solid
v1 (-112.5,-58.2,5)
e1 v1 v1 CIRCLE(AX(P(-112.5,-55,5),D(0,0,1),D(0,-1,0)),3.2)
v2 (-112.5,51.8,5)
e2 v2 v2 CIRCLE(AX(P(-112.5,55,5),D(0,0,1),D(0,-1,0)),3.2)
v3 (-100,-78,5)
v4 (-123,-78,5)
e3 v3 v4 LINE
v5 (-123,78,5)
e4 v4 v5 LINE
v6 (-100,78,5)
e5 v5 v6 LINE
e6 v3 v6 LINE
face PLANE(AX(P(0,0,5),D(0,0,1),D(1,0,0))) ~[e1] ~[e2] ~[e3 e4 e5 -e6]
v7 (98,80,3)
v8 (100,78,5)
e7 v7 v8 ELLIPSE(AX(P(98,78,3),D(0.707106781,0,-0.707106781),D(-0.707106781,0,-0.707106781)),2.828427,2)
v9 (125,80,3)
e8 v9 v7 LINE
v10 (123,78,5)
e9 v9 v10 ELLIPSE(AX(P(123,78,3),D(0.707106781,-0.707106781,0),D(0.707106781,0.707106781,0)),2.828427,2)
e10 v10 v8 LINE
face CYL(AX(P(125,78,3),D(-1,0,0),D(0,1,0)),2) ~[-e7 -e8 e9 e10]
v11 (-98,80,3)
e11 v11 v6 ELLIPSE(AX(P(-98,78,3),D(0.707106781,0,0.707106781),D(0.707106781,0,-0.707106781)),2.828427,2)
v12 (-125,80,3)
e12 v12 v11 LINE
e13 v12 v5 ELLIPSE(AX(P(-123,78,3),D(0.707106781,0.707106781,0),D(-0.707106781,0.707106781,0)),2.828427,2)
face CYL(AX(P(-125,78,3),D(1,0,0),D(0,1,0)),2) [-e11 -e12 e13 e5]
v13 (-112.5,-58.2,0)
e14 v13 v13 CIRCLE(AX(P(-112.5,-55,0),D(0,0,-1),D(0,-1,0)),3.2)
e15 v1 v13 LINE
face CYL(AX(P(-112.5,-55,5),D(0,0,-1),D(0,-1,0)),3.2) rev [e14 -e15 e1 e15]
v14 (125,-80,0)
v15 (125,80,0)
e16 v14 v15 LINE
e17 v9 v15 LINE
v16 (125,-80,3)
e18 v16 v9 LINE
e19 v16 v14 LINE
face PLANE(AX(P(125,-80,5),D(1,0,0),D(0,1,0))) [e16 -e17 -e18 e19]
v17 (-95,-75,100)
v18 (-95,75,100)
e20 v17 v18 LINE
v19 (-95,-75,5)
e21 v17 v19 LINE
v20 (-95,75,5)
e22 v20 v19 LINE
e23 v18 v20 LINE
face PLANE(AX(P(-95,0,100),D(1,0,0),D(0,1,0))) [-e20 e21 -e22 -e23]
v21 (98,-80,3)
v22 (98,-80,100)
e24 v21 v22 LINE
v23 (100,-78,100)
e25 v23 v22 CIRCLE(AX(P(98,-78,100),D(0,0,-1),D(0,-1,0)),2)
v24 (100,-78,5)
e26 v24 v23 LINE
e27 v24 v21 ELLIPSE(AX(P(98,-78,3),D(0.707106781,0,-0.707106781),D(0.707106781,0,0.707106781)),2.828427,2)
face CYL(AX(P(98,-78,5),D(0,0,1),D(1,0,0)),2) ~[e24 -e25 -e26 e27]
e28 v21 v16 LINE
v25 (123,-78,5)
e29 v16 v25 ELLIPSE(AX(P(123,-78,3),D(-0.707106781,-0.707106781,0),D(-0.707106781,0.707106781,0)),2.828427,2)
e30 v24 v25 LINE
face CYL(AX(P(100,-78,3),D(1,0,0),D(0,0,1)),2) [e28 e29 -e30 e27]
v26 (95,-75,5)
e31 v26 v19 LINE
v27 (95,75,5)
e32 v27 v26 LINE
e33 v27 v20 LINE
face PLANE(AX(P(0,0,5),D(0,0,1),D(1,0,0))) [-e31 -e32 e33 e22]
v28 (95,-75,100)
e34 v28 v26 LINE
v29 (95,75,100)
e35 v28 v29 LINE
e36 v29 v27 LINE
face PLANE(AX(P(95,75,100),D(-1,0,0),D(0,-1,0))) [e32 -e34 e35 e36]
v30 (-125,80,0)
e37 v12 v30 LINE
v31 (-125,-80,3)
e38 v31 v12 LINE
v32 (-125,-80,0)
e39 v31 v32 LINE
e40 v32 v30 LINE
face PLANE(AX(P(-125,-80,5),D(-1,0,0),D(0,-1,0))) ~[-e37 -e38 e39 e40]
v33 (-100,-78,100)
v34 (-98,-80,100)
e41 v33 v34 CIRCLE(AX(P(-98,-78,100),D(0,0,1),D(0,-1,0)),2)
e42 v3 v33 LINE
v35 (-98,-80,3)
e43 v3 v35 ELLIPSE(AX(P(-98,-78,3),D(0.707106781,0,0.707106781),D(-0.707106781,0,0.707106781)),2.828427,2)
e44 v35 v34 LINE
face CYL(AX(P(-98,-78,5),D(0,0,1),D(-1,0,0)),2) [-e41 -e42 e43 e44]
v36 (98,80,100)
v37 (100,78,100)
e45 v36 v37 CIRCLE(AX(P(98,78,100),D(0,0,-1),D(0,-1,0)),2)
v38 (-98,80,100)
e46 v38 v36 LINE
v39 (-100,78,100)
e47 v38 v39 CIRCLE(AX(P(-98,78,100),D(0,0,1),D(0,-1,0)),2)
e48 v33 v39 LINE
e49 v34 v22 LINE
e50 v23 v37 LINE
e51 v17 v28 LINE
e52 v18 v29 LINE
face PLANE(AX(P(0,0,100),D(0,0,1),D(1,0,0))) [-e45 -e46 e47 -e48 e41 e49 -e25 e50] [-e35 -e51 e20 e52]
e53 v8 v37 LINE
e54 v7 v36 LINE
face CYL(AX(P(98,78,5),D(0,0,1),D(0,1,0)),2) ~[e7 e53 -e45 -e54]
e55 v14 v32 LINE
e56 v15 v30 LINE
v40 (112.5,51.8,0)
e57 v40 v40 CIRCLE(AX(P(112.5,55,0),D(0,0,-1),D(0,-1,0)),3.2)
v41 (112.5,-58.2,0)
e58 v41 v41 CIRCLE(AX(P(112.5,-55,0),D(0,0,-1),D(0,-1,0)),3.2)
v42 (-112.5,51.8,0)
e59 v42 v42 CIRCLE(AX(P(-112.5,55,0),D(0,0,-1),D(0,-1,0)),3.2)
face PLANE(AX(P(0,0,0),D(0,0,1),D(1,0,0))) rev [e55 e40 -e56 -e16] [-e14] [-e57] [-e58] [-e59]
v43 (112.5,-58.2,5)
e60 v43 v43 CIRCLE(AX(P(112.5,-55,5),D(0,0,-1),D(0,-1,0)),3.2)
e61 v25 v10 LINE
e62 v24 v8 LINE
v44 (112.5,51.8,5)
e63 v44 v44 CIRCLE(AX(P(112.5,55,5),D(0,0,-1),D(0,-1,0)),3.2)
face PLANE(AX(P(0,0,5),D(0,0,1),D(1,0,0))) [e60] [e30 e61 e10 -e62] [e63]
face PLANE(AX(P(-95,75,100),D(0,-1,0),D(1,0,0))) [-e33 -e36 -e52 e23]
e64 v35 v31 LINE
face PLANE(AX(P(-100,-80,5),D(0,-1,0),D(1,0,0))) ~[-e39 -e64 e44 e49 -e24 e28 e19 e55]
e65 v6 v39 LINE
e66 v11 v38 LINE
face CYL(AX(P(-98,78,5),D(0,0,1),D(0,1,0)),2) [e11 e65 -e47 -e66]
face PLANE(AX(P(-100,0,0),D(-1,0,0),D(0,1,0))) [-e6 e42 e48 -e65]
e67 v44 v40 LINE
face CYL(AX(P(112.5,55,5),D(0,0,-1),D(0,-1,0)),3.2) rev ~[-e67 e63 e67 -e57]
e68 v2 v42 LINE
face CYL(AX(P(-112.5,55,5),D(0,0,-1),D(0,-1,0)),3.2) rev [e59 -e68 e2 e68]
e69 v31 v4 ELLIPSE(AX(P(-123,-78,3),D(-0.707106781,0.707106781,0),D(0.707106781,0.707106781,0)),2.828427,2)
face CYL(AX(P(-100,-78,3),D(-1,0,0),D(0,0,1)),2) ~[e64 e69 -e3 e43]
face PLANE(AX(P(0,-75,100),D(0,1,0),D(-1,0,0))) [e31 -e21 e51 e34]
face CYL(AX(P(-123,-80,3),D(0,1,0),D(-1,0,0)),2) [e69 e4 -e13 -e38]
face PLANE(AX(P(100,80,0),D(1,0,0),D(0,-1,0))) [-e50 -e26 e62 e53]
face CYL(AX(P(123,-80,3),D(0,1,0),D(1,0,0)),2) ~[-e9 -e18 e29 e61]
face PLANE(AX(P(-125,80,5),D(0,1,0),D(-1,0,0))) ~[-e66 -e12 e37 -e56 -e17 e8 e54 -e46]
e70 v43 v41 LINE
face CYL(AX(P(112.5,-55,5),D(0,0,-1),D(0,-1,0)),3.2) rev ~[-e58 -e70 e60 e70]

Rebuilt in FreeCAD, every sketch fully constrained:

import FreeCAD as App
import Part
import Sketcher

V = App.Vector
Q = App.Units.Quantity


def edges_at(feature, points):
    """Names of the edges that pass closest to the given points."""
    edges = feature.Shape.Edges
    near = lambda p: min(range(len(edges)), key=lambda i: edges[i].distToShape(Part.Vertex(*p))[0])
    return sorted({f"Edge{near(p) + 1}" for p in points})


def add_polygon(sketch, points):
    """Adds a closed chain of lines whose ends are joined by coincident constraints."""
    first, n = sketch.GeometryCount, len(points)
    for a, b in zip(points, points[1:] + points[:1]):
        sketch.addGeometry(Part.LineSegment(App.Vector(*a, 0), App.Vector(*b, 0)), False)
    for i in range(n):
        sketch.addConstraint(Sketcher.Constraint("Coincident", first + i, 2, first + (i + 1) % n, 1))

doc = App.newDocument("Part")
params = doc.addObject("Spreadsheet::Sheet", "Params")
for row, (alias, value) in enumerate([
    ("sketch1_width", "200 mm"),
    ("sketch1_height", "160 mm"),
    ("pad1_length", "100 mm"),
    ("sketch2_width", "190 mm"),
    ("sketch2_height", "150 mm"),
    ("pocket1_length", "95 mm"),
    ("sketch3_width", "25 mm"),
    ("sketch3_height", "160 mm"),
    ("pad2_length", "5 mm"),
    ("sketch4_diameter", "6.4 mm"),
    ("hole_diameter", "6.4 mm"),
    ("hole_depth", "8 mm"),
    ("fillet_radius", "2 mm"),
], start=1):
    params.set(f"A{row}", alias)
    params.set(f"B{row}", "=" + value)
    params.setAlias(f"B{row}", alias)

body = doc.addObject("PartDesign::Body", "Body")

sketch1 = doc.addObject("Sketcher::SketchObject", "Sketch")
body.addObject(sketch1)
sketch1.AttachmentSupport = (doc.XY_Plane, [""])
sketch1.MapMode = "FlatFace"
add_polygon(sketch1, [(-100, 80), (-100, -80), (100, -80), (100, 80)])
sketch1.addConstraint([
    Sketcher.Constraint("Vertical", 0),
    Sketcher.Constraint("Horizontal", 1),
    Sketcher.Constraint("Vertical", 2),
    Sketcher.Constraint("Horizontal", 3),
    Sketcher.Constraint("Symmetric", 0, 2, 2, 2, -1, 1),
    Sketcher.Constraint("DistanceX", 1, 1, 1, 2, Q("200 mm")),
    Sketcher.Constraint("DistanceY", 0, 2, 0, 1, Q("160 mm")),
])
sketch1.setExpression("Constraints[9]", "Params.sketch1_width")
sketch1.setExpression("Constraints[10]", "Params.sketch1_height")
pad1 = doc.addObject("PartDesign::Pad", "Pad")
body.addObject(pad1)
pad1.Profile = sketch1
pad1.setExpression("Length", "Params.pad1_length")

sketch2 = doc.addObject("Sketcher::SketchObject", "Sketch001")
body.addObject(sketch2)
sketch2.AttachmentSupport = (doc.XY_Plane, [""])
sketch2.MapMode = "FlatFace"
sketch2.AttachmentOffset = App.Placement(V(0, 0, 100), App.Rotation())
add_polygon(sketch2, [(-95, 75), (-95, -75), (95, -75), (95, 75)])
sketch2.addConstraint([
    Sketcher.Constraint("Vertical", 0),
    Sketcher.Constraint("Horizontal", 1),
    Sketcher.Constraint("Vertical", 2),
    Sketcher.Constraint("Horizontal", 3),
    Sketcher.Constraint("Symmetric", 0, 2, 2, 2, -1, 1),
    Sketcher.Constraint("DistanceX", 1, 1, 1, 2, Q("190 mm")),
    Sketcher.Constraint("DistanceY", 0, 2, 0, 1, Q("150 mm")),
])
sketch2.setExpression("Constraints[9]", "Params.sketch2_width")
sketch2.setExpression("Constraints[10]", "Params.sketch2_height")
pocket1 = doc.addObject("PartDesign::Pocket", "Pocket")
body.addObject(pocket1)
pocket1.Profile = sketch2
pocket1.setExpression("Length", "Params.pocket1_length")

sketch3 = doc.addObject("Sketcher::SketchObject", "Sketch002")
body.addObject(sketch3)
sketch3.AttachmentSupport = (doc.XY_Plane, [""])
sketch3.MapMode = "FlatFace"
sketch3.AttachmentOffset = App.Placement(V(0, 0, 5), App.Rotation())
add_polygon(sketch3, [(100, 80), (100, -80), (125, -80), (125, 80)])
sketch3.addConstraint([
    Sketcher.Constraint("Vertical", 0),
    Sketcher.Constraint("Horizontal", 1),
    Sketcher.Constraint("Vertical", 2),
    Sketcher.Constraint("Horizontal", 3),
    Sketcher.Constraint("DistanceX", 1, 1, 1, 2, Q("25 mm")),
    Sketcher.Constraint("DistanceY", 0, 2, 0, 1, Q("160 mm")),
    Sketcher.Constraint("DistanceX", -1, 1, 0, 2, Q("100 mm")),
    Sketcher.Constraint("DistanceY", 0, 2, -1, 1, Q("80 mm")),
])
sketch3.setExpression("Constraints[8]", "Params.sketch3_width")
sketch3.setExpression("Constraints[9]", "Params.sketch3_height")
pad2 = doc.addObject("PartDesign::Pad", "Pad001")
body.addObject(pad2)
pad2.Profile = sketch3
pad2.setExpression("Length", "Params.pad2_length")
pad2.Reversed = True

sketch4 = doc.addObject("Sketcher::SketchObject", "Sketch003")
body.addObject(sketch4)
sketch4.AttachmentSupport = (doc.XY_Plane, [""])
sketch4.MapMode = "FlatFace"
sketch4.AttachmentOffset = App.Placement(V(0, 0, 5), App.Rotation())
sketch4.addGeometry([
    Part.Circle(V(112.5, 55, 0), V(0, 0, 1), 3.2),
    Part.Circle(V(112.5, -55, 0), V(0, 0, 1), 3.2),
], False)
sketch4.addConstraint([
    Sketcher.Constraint("Equal", 0, 1),
    Sketcher.Constraint("Symmetric", 0, 3, 1, 3, -1),
    Sketcher.Constraint("Diameter", 0, Q("6.4 mm")),
    Sketcher.Constraint("DistanceY", -1, 1, 0, 3, Q("55 mm")),
    Sketcher.Constraint("DistanceX", -1, 1, 0, 3, Q("112.5 mm")),
])
sketch4.setExpression("Constraints[2]", "Params.sketch4_diameter")
doc.recompute()
hole = doc.addObject("PartDesign::Hole", "Hole")
body.addObject(hole)
hole.Profile = sketch4
hole.ThreadType = "None"
hole.setExpression("Diameter", "Params.hole_diameter")
hole.DepthType = "Dimension"
hole.setExpression("Depth", "Params.hole_depth")
hole.DrillPoint = "Angled"
hole.DrillPointAngle = 118
doc.recompute()

mirrored = doc.addObject("PartDesign::Mirrored", "Mirrored")
body.addObject(mirrored)
mirrored.Originals = [pad2, hole]
mirrored.MirrorPlane = (doc.YZ_Plane, [""])
body.Tip = mirrored
doc.recompute()

fillet = doc.addObject("PartDesign::Fillet", "Fillet")
body.addObject(fillet)
fillet.Base = (mirrored, edges_at(mirrored, [
    (125, 0, 5),
    (-125, 0, 5),
    (-112.5, -80, 5),
    (-100, -80, 52.5),
    (112.5, -80, 5),
    (100, -80, 52.5),
    (112.5, 80, 5),
    (-112.5, 80, 5),
    (-100, 80, 52.5),
    (100, 80, 52.5),
]))
fillet.setExpression("Radius", "Params.fillet_radius")

doc.recompute()
